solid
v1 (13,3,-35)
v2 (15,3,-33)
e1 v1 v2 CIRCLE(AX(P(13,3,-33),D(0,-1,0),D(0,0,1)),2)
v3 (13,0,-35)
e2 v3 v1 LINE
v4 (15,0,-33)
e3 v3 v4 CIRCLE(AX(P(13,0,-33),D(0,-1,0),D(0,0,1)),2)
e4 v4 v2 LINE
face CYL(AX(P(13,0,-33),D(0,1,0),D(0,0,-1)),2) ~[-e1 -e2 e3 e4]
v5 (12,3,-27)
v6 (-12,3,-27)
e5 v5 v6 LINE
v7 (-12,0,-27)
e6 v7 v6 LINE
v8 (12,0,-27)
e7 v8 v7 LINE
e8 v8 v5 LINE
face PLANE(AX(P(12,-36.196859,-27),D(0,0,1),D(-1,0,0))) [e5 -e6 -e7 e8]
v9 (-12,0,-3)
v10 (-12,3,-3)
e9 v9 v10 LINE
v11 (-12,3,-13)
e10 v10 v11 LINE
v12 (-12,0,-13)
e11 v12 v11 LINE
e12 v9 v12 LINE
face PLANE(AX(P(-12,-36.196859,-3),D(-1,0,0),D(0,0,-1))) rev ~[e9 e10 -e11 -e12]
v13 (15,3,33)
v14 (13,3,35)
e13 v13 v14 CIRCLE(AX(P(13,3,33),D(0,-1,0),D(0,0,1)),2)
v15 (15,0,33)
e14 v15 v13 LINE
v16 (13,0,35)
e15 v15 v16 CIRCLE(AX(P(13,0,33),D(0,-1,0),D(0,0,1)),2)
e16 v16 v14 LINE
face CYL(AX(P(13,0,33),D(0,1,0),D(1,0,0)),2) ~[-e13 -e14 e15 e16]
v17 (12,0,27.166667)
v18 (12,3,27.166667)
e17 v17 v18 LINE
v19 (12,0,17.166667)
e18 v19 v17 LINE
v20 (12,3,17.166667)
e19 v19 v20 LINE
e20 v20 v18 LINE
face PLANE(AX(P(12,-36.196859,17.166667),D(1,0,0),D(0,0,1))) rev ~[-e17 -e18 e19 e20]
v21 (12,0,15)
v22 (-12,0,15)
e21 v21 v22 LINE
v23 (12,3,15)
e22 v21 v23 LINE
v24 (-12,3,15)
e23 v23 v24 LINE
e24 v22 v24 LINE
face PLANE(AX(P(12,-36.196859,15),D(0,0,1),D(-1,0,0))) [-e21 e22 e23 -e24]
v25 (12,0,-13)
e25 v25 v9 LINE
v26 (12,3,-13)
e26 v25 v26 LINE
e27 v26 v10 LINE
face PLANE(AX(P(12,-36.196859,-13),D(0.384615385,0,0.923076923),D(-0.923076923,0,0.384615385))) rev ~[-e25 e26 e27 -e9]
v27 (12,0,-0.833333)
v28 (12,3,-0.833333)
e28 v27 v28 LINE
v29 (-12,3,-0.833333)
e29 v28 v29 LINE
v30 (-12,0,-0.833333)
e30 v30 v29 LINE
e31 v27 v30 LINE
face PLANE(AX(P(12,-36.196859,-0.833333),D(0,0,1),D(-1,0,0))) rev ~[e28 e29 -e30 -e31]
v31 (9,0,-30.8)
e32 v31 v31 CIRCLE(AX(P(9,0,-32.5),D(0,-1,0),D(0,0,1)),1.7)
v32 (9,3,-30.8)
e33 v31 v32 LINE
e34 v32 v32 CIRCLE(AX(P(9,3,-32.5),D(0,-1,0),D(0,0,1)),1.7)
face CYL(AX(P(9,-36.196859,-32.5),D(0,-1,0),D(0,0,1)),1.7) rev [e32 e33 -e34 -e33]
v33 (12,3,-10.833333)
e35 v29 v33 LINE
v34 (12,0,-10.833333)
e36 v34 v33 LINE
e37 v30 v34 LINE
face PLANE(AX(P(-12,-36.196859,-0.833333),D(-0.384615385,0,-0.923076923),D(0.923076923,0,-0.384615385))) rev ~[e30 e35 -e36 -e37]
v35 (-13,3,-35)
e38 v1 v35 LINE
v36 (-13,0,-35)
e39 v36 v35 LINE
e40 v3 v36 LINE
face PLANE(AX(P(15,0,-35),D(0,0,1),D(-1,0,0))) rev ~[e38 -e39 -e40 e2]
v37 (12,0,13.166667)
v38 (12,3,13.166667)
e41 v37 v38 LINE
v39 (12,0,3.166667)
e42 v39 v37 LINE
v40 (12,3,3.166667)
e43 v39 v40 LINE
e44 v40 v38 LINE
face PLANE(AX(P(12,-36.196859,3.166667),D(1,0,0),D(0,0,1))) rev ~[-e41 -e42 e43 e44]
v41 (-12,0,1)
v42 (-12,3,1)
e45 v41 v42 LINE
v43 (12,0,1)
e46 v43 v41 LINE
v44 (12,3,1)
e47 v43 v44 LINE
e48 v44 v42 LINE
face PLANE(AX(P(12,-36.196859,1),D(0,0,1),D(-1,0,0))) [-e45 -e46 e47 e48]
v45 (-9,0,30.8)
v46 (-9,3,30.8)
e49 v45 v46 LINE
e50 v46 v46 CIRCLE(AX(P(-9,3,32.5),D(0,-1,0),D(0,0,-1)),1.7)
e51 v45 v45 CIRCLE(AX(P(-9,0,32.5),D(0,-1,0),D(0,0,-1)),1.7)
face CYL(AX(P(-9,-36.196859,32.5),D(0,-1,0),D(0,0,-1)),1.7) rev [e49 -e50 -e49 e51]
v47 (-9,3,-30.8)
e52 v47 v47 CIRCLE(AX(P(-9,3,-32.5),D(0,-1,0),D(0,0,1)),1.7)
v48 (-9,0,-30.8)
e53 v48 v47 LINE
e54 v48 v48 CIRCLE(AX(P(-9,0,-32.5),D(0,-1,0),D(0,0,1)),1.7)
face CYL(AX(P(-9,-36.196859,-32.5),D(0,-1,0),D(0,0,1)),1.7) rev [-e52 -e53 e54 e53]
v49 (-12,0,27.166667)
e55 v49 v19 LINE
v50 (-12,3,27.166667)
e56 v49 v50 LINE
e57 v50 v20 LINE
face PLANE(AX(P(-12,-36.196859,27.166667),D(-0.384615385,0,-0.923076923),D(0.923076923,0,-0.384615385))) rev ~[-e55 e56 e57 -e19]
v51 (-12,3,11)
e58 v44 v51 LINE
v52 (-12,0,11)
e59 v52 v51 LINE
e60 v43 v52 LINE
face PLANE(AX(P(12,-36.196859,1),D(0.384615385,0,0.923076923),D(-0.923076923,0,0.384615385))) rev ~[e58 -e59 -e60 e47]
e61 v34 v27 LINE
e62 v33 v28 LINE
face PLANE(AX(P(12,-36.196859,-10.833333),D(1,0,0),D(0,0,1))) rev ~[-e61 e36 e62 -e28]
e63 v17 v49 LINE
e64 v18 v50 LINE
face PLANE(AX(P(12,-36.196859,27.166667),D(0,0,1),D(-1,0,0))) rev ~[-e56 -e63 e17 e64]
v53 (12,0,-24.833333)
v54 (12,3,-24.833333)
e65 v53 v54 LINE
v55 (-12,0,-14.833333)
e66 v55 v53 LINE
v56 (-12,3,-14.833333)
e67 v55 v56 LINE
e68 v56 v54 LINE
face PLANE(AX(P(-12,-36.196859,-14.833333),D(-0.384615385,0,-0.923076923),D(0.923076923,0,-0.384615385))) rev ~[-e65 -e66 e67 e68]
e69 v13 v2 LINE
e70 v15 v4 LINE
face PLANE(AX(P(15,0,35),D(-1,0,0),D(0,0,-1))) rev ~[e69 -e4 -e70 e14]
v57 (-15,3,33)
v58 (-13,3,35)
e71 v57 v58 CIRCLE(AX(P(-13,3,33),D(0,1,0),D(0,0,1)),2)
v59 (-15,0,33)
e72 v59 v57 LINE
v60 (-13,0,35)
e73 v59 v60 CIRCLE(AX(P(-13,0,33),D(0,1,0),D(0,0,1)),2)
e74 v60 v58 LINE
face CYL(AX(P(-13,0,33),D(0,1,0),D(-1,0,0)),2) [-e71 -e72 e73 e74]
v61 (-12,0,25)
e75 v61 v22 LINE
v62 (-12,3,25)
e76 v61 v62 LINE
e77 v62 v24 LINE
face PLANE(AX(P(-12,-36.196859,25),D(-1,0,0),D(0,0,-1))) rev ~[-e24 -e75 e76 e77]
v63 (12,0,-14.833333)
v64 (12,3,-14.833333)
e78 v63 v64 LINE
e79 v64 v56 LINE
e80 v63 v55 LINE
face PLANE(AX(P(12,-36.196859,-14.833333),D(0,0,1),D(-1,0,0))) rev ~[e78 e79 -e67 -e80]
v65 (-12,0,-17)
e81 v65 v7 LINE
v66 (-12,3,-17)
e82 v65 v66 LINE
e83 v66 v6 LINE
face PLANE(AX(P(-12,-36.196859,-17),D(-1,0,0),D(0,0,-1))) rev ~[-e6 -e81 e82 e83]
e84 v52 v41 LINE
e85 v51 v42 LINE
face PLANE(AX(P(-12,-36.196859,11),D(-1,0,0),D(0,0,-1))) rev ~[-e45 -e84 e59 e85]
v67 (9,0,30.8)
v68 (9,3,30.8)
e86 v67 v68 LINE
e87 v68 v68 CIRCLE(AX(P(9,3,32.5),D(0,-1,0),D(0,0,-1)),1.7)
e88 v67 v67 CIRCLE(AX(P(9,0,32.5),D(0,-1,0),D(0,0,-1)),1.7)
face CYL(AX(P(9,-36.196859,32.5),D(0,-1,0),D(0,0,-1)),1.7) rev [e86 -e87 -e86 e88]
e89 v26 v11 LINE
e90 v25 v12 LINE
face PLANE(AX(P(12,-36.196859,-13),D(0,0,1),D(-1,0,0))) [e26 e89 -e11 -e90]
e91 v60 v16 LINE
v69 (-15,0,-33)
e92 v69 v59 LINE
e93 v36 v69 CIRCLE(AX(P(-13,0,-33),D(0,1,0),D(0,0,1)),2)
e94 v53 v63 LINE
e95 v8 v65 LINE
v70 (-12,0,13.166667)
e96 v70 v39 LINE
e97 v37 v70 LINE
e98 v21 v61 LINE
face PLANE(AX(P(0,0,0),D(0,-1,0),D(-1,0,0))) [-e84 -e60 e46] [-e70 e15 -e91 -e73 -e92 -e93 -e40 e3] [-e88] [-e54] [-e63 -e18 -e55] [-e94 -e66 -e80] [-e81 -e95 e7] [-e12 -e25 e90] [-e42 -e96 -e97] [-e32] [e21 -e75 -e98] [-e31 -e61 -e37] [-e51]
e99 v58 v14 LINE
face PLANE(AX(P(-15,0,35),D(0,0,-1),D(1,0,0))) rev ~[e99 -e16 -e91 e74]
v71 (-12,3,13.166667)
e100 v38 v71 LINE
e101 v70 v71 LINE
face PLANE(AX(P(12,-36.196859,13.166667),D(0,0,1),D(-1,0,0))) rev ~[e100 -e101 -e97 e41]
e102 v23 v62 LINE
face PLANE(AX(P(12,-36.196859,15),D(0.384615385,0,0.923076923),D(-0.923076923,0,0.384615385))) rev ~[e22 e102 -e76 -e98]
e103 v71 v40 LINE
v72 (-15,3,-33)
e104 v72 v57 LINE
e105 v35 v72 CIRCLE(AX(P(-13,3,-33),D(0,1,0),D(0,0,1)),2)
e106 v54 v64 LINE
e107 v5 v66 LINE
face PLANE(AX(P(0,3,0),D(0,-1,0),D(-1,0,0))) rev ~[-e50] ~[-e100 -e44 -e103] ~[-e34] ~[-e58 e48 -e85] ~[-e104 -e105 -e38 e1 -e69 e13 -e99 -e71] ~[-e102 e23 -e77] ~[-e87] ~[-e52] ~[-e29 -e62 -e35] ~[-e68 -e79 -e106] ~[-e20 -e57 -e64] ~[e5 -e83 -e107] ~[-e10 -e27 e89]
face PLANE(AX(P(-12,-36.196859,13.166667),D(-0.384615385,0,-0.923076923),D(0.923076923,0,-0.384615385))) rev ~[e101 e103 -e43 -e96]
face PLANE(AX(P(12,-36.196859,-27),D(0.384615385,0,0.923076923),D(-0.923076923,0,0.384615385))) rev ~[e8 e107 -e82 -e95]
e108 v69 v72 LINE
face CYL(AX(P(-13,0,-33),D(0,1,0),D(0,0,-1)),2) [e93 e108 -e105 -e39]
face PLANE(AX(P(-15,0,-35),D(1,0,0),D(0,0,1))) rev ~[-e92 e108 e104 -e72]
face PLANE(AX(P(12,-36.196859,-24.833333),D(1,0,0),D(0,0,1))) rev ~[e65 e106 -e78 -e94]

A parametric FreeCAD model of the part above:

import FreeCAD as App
import Part
import Sketcher
from FreeCAD import Vector
Q = App.Units.Quantity


def edges_at(feature, points):
    """Names of the edges that pass closest to the given points."""
    edges = feature.Shape.Edges
    near = lambda p: min(range(len(edges)), key=lambda i: edges[i].distToShape(Part.Vertex(*p))[0])
    return sorted({f"Edge{near(p) + 1}" for p in points})

doc = App.newDocument("Part")
body = doc.addObject("PartDesign::Body", "Body")

# Sketch on XZ plane
sketch1 = body.newObject("Sketcher::SketchObject", "Sketch")
sketch1.AttachmentSupport = (doc.getObject("XZ_Plane"), [""])
sketch1.MapMode = "FlatFace"
sketch1.addGeometry([
    Part.LineSegment(Vector(15, -35, 0), Vector(-15, -35, 0)),
    Part.LineSegment(Vector(-15, -35, 0), Vector(-15, 35, 0)),
    Part.LineSegment(Vector(-15, 35, 0), Vector(15, 35, 0)),
    Part.LineSegment(Vector(15, 35, 0), Vector(15, -35, 0)),
], False)
sketch1.addConstraint([
    Sketcher.Constraint("Coincident", 0, 2, 1, 1),
    Sketcher.Constraint("Coincident", 1, 2, 2, 1),
    Sketcher.Constraint("Coincident", 2, 2, 3, 1),
    Sketcher.Constraint("Coincident", 3, 2, 0, 1),
    Sketcher.Constraint("Horizontal", 0),
    Sketcher.Constraint("Vertical", 1),
    Sketcher.Constraint("Horizontal", 2),
    Sketcher.Constraint("Vertical", 3),
    Sketcher.Constraint("Symmetric", 0, 2, 2, 2, -1, 1),
    Sketcher.Constraint("DistanceX", 0, 2, 0, 1, Q("30 mm")),
    Sketcher.Constraint("DistanceY", 1, 1, 1, 2, Q("70 mm")),
])
pad1 = body.newObject("PartDesign::Pad", "Pad")
pad1.Profile = sketch1
pad1.Length = 3
pad1.Reversed = True

# Sketch on XZ plane
sketch2 = body.newObject("Sketcher::SketchObject", "Sketch001")
sketch2.AttachmentSupport = (doc.getObject("XZ_Plane"), [""])
sketch2.MapMode = "FlatFace"
sketch2.AttachmentOffset = App.Placement(Vector(0, 0, -3), App.Rotation())
sketch2.addGeometry([
    Part.Circle(Vector(-9, -32.5, 0), Vector(0, 0, 1), 1.7),
    Part.Circle(Vector(9, -32.5, 0), Vector(0, 0, 1), 1.7),
    Part.Circle(Vector(9, 32.5, 0), Vector(0, 0, 1), 1.7),
    Part.Circle(Vector(-9, 32.5, 0), Vector(0, 0, 1), 1.7),
], False)
sketch2.addConstraint([
    Sketcher.Constraint("Equal", 0, 1),
    Sketcher.Constraint("Equal", 1, 2),
    Sketcher.Constraint("Equal", 2, 3),
    Sketcher.Constraint("Symmetric", 0, 3, 2, 3, -1, 1),
    Sketcher.Constraint("Symmetric", 1, 3, 3, 3, -1, 1),
    Sketcher.Constraint("Symmetric", 0, 3, 1, 3, -2),
    Sketcher.Constraint("Diameter", 0, Q("3.4 mm")),
    Sketcher.Constraint("DistanceX", 0, 3, -1, 1, Q("9 mm")),
    Sketcher.Constraint("DistanceY", 1, 3, 2, 3, Q("65 mm")),
])
pocket1 = body.newObject("PartDesign::Pocket", "Pocket")
pocket1.Profile = sketch2
pocket1.Type = "ThroughAll"
pocket1.Midplane = True

# Sketch on XZ plane
sketch3 = body.newObject("Sketcher::SketchObject", "Sketch002")
sketch3.AttachmentSupport = (doc.getObject("XZ_Plane"), [""])
sketch3.MapMode = "FlatFace"
sketch3.AttachmentOffset = App.Placement(Vector(0, 0, -3), App.Rotation())
sketch3.addGeometry([
    Part.LineSegment(Vector(12, -27, 0), Vector(-12, -27, 0)),  # 0
    Part.LineSegment(Vector(-12, -27, 0), Vector(-12, -17, 0)),  # 1
    Part.LineSegment(Vector(-12, -17, 0), Vector(12, -27, 0)),  # 2
    Part.LineSegment(Vector(12, -24.833333, 0), Vector(-12, -14.833333, 0)),  # 3
    Part.LineSegment(Vector(-12, -14.833333, 0), Vector(12, -14.833333, 0)),  # 4
    Part.LineSegment(Vector(12, -14.833333, 0), Vector(12, -24.833333, 0)),  # 5
    Part.LineSegment(Vector(12, -13, 0), Vector(-12, -13, 0)),  # 6
    Part.LineSegment(Vector(-12, -13, 0), Vector(-12, -3, 0)),  # 7
    Part.LineSegment(Vector(-12, -3, 0), Vector(12, -13, 0)),  # 8
    Part.LineSegment(Vector(12, -10.833333, 0), Vector(-12, -0.833333, 0)),  # 9
    Part.LineSegment(Vector(-12, -0.833333, 0), Vector(12, -0.833333, 0)),  # 10
    Part.LineSegment(Vector(12, -0.833333, 0), Vector(12, -10.833333, 0)),  # 11
    Part.LineSegment(Vector(12, 1, 0), Vector(-12, 1, 0)),  # 12
    Part.LineSegment(Vector(-12, 1, 0), Vector(-12, 11, 0)),  # 13
    Part.LineSegment(Vector(-12, 11, 0), Vector(12, 1, 0)),  # 14
    Part.LineSegment(Vector(12, 3.166667, 0), Vector(-12, 13.166667, 0)),  # 15
    Part.LineSegment(Vector(-12, 13.166667, 0), Vector(12, 13.166667, 0)),  # 16
    Part.LineSegment(Vector(12, 13.166667, 0), Vector(12, 3.166667, 0)),  # 17
    Part.LineSegment(Vector(12, 15, 0), Vector(-12, 15, 0)),  # 18
    Part.LineSegment(Vector(-12, 15, 0), Vector(-12, 25, 0)),  # 19
    Part.LineSegment(Vector(-12, 25, 0), Vector(12, 15, 0)),  # 20
    Part.LineSegment(Vector(12, 17.166667, 0), Vector(-12, 27.166667, 0)),  # 21
    Part.LineSegment(Vector(-12, 27.166667, 0), Vector(12, 27.166667, 0)),  # 22
    Part.LineSegment(Vector(12, 27.166667, 0), Vector(12, 17.166667, 0)),  # 23
], False)
sketch3.addConstraint([
    Sketcher.Constraint("Coincident", 0, 2, 1, 1),
    Sketcher.Constraint("Coincident", 1, 2, 2, 1),
    Sketcher.Constraint("Coincident", 2, 2, 0, 1),
    Sketcher.Constraint("Coincident", 3, 2, 4, 1),
    Sketcher.Constraint("Coincident", 4, 2, 5, 1),
    Sketcher.Constraint("Coincident", 5, 2, 3, 1),
    Sketcher.Constraint("Coincident", 6, 2, 7, 1),
    Sketcher.Constraint("Coincident", 7, 2, 8, 1),
    Sketcher.Constraint("Coincident", 8, 2, 6, 1),
    Sketcher.Constraint("Coincident", 9, 2, 10, 1),
    Sketcher.Constraint("Coincident", 10, 2, 11, 1),
    Sketcher.Constraint("Coincident", 11, 2, 9, 1),
    Sketcher.Constraint("Coincident", 12, 2, 13, 1),
    Sketcher.Constraint("Coincident", 13, 2, 14, 1),
    Sketcher.Constraint("Coincident", 14, 2, 12, 1),
    Sketcher.Constraint("Coincident", 15, 2, 16, 1),
    Sketcher.Constraint("Coincident", 16, 2, 17, 1),
    Sketcher.Constraint("Coincident", 17, 2, 15, 1),
    Sketcher.Constraint("Coincident", 18, 2, 19, 1),
    Sketcher.Constraint("Coincident", 19, 2, 20, 1),
    Sketcher.Constraint("Coincident", 20, 2, 18, 1),
    Sketcher.Constraint("Coincident", 21, 2, 22, 1),
    Sketcher.Constraint("Coincident", 22, 2, 23, 1),
    Sketcher.Constraint("Coincident", 23, 2, 21, 1),
    Sketcher.Constraint("Horizontal", 0),
    Sketcher.Constraint("Vertical", 1),
    Sketcher.Constraint("Horizontal", 4),
    Sketcher.Constraint("Vertical", 5),
    Sketcher.Constraint("Horizontal", 6),
    Sketcher.Constraint("Vertical", 7),
    Sketcher.Constraint("Horizontal", 10),
    Sketcher.Constraint("Vertical", 11),
    Sketcher.Constraint("Horizontal", 12),
    Sketcher.Constraint("Vertical", 13),
    Sketcher.Constraint("Horizontal", 16),
    Sketcher.Constraint("Vertical", 17),
    Sketcher.Constraint("Horizontal", 18),
    Sketcher.Constraint("Vertical", 19),
    Sketcher.Constraint("Horizontal", 22),
    Sketcher.Constraint("Vertical", 23),
    Sketcher.Constraint("Parallel", 2, 3),
    Sketcher.Constraint("Parallel", 3, 8),
    Sketcher.Constraint("Parallel", 8, 9),
    Sketcher.Constraint("Parallel", 9, 14),
    Sketcher.Constraint("Parallel", 14, 15),
    Sketcher.Constraint("Parallel", 15, 20),
    Sketcher.Constraint("Parallel", 20, 21),
    Sketcher.Constraint("Vertical", 1, 2, 3, 2),
    Sketcher.Constraint("Vertical", 2, 2, 4, 2),
    Sketcher.Constraint("Vertical", 3, 2, 6, 2),
    Sketcher.Constraint("Vertical", 5, 2, 8, 2),
    Sketcher.Constraint("Vertical", 7, 2, 9, 2),
    Sketcher.Constraint("Vertical", 8, 2, 10, 2),
    Sketcher.Constraint("Vertical", 9, 2, 12, 2),
    Sketcher.Constraint("Vertical", 11, 2, 14, 2),
    Sketcher.Constraint("Vertical", 13, 2, 15, 2),
    Sketcher.Constraint("Vertical", 14, 2, 16, 2),
    Sketcher.Constraint("Vertical", 15, 2, 18, 2),
    Sketcher.Constraint("Vertical", 17, 2, 20, 2),
    Sketcher.Constraint("Vertical", 19, 2, 21, 2),
    Sketcher.Constraint("Vertical", 20, 2, 22, 2),
    Sketcher.Constraint("DistanceX", 0, 2, 0, 1, Q("24 mm")),
    Sketcher.Constraint("DistanceY", 1, 1, 1, 2, Q("10 mm")),
    Sketcher.Constraint("DistanceX", 0, 2, -1, 1, Q("12 mm")),
    Sketcher.Constraint("DistanceY", 0, 2, -1, 1, Q("27 mm")),
    Sketcher.Constraint("DistanceY", 6, 2, -1, 1, Q("13 mm")),
    Sketcher.Constraint("DistanceY", -1, 1, 12, 2, Q("1 mm")),
    Sketcher.Constraint("DistanceY", -1, 1, 18, 2, Q("15 mm")),
    Sketcher.Constraint("DistanceY", 3, 2, 9, 2, Q("14 mm")),
    Sketcher.Constraint("DistanceY", 9, 2, 15, 2, Q("14 mm")),
    Sketcher.Constraint("DistanceY", 15, 2, 21, 2, Q("14 mm")),
    Sketcher.Constraint("DistanceY", 3, 2, -1, 1, Q("14.833333 mm")),
])
pocket2 = body.newObject("PartDesign::Pocket", "Pocket001")
pocket2.Profile = sketch3
pocket2.Type = "ThroughAll"
pocket2.Midplane = True
doc.recompute()

fillet = body.newObject("PartDesign::Fillet", "Fillet")
fillet.Base = (pocket2, edges_at(pocket2, [
    (-15, 1.5, -35),
    (15, 1.5, -35),
    (15, 1.5, 35),
    (-15, 1.5, 35),
]))
fillet.Radius = 2

doc.recompute()
